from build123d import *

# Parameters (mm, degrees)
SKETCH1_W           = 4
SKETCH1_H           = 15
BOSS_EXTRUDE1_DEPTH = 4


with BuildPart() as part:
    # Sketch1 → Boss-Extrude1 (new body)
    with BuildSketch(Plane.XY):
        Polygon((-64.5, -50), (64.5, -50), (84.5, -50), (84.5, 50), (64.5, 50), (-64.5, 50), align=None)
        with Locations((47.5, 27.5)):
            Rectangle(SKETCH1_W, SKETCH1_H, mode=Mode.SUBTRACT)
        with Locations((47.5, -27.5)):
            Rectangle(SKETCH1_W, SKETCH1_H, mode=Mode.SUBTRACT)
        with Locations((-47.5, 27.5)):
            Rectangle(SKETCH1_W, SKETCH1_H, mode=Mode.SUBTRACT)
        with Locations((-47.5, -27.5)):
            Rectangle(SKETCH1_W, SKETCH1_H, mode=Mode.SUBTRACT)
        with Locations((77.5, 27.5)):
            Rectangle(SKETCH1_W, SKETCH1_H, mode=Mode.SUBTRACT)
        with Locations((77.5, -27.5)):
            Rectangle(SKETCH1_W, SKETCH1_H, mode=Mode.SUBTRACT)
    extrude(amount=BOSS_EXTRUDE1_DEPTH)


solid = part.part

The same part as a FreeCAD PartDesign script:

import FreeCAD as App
import Part
import Sketcher
from FreeCAD import Vector
Q = App.Units.Quantity

doc = App.newDocument("Part")
body = doc.addObject("PartDesign::Body", "Body")

sketch1 = body.newObject("Sketcher::SketchObject", "Sketch")
sketch1.AttachmentSupport = (doc.getObject("XY_Plane"), [""])
sketch1.MapMode = "FlatFace"
sketch1.addGeometry([
    Part.LineSegment(Vector(-64.5, -50, 0), Vector(84.5, -50, 0)),
    Part.LineSegment(Vector(84.5, -50, 0), Vector(84.5, 50, 0)),
    Part.LineSegment(Vector(84.5, 50, 0), Vector(-64.5, 50, 0)),
    Part.LineSegment(Vector(-64.5, 50, 0), Vector(-64.5, -50, 0)),
    Part.LineSegment(Vector(-45.5, -35, 0), Vector(-49.5, -35, 0)),
    Part.LineSegment(Vector(-49.5, -35, 0), Vector(-49.5, -20, 0)),
    Part.LineSegment(Vector(-49.5, -20, 0), Vector(-45.5, -20, 0)),
    Part.LineSegment(Vector(-45.5, -20, 0), Vector(-45.5, -35, 0)),
    Part.LineSegment(Vector(49.5, -35, 0), Vector(45.5, -35, 0)),
    Part.LineSegment(Vector(45.5, -35, 0), Vector(45.5, -20, 0)),
    Part.LineSegment(Vector(45.5, -20, 0), Vector(49.5, -20, 0)),
    Part.LineSegment(Vector(49.5, -20, 0), Vector(49.5, -35, 0)),
    Part.LineSegment(Vector(79.5, -35, 0), Vector(75.5, -35, 0)),
    Part.LineSegment(Vector(75.5, -35, 0), Vector(75.5, -20, 0)),
    Part.LineSegment(Vector(75.5, -20, 0), Vector(79.5, -20, 0)),
    Part.LineSegment(Vector(79.5, -20, 0), Vector(79.5, -35, 0)),
    Part.LineSegment(Vector(-45.5, 20, 0), Vector(-49.5, 20, 0)),
    Part.LineSegment(Vector(-49.5, 20, 0), Vector(-49.5, 35, 0)),
    Part.LineSegment(Vector(-49.5, 35, 0), Vector(-45.5, 35, 0)),
    Part.LineSegment(Vector(-45.5, 35, 0), Vector(-45.5, 20, 0)),
    Part.LineSegment(Vector(49.5, 20, 0), Vector(45.5, 20, 0)),
    Part.LineSegment(Vector(45.5, 20, 0), Vector(45.5, 35, 0)),
    Part.LineSegment(Vector(45.5, 35, 0), Vector(49.5, 35, 0)),
    Part.LineSegment(Vector(49.5, 35, 0), Vector(49.5, 20, 0)),
    Part.LineSegment(Vector(79.5, 20, 0), Vector(75.5, 20, 0)),
    Part.LineSegment(Vector(75.5, 20, 0), Vector(75.5, 35, 0)),
    Part.LineSegment(Vector(75.5, 35, 0), Vector(79.5, 35, 0)),
    Part.LineSegment(Vector(79.5, 35, 0), Vector(79.5, 20, 0)),
], False)
sketch1.addConstraint([
    Sketcher.Constraint("Coincident", 0, 2, 1, 1),
    Sketcher.Constraint("Coincident", 1, 2, 2, 1),
    Sketcher.Constraint("Coincident", 2, 2, 3, 1),
    Sketcher.Constraint("Coincident", 3, 2, 0, 1),
    Sketcher.Constraint("Coincident", 4, 2, 5, 1),
    Sketcher.Constraint("Coincident", 5, 2, 6, 1),
    Sketcher.Constraint("Coincident", 6, 2, 7, 1),
    Sketcher.Constraint("Coincident", 7, 2, 4, 1),
    Sketcher.Constraint("Coincident", 8, 2, 9, 1),
    Sketcher.Constraint("Coincident", 9, 2, 10, 1),
    Sketcher.Constraint("Coincident", 10, 2, 11, 1),
    Sketcher.Constraint("Coincident", 11, 2, 8, 1),
    Sketcher.Constraint("Coincident", 12, 2, 13, 1),
    Sketcher.Constraint("Coincident", 13, 2, 14, 1),
    Sketcher.Constraint("Coincident", 14, 2, 15, 1),
    Sketcher.Constraint("Coincident", 15, 2, 12, 1),
    Sketcher.Constraint("Coincident", 16, 2, 17, 1),
    Sketcher.Constraint("Coincident", 17, 2, 18, 1),
    Sketcher.Constraint("Coincident", 18, 2, 19, 1),
    Sketcher.Constraint("Coincident", 19, 2, 16, 1),
    Sketcher.Constraint("Coincident", 20, 2, 21, 1),
    Sketcher.Constraint("Coincident", 21, 2, 22, 1),
    Sketcher.Constraint("Coincident", 22, 2, 23, 1),
    Sketcher.Constraint("Coincident", 23, 2, 20, 1),
    Sketcher.Constraint("Coincident", 24, 2, 25, 1),
    Sketcher.Constraint("Coincident", 25, 2, 26, 1),
    Sketcher.Constraint("Coincident", 26, 2, 27, 1),
    Sketcher.Constraint("Coincident", 27, 2, 24, 1),
    Sketcher.Constraint("Horizontal", 0),
    Sketcher.Constraint("Vertical", 1),
    Sketcher.Constraint("Horizontal", 2),
    Sketcher.Constraint("Vertical", 3),
    Sketcher.Constraint("Horizontal", 4),
    Sketcher.Constraint("Vertical", 5),
    Sketcher.Constraint("Horizontal", 6),
    Sketcher.Constraint("Vertical", 7),
    Sketcher.Constraint("Horizontal", 8),
    Sketcher.Constraint("Vertical", 9),
    Sketcher.Constraint("Horizontal", 10),
    Sketcher.Constraint("Vertical", 11),
    Sketcher.Constraint("Horizontal", 12),
    Sketcher.Constraint("Vertical", 13),
    Sketcher.Constraint("Horizontal", 14),
    Sketcher.Constraint("Vertical", 15),
    Sketcher.Constraint("Horizontal", 16),
    Sketcher.Constraint("Vertical", 17),
    Sketcher.Constraint("Horizontal", 18),
    Sketcher.Constraint("Vertical", 19),
    Sketcher.Constraint("Horizontal", 20),
    Sketcher.Constraint("Vertical", 21),
    Sketcher.Constraint("Horizontal", 22),
    Sketcher.Constraint("Vertical", 23),
    Sketcher.Constraint("Horizontal", 24),
    Sketcher.Constraint("Vertical", 25),
    Sketcher.Constraint("Horizontal", 26),
    Sketcher.Constraint("Vertical", 27),
    Sketcher.Constraint("Symmetric", 10, 2, 16, 2, -1, 1),
    Sketcher.Constraint("Symmetric", 8, 2, 18, 2, -1, 1),
    Sketcher.Constraint("Symmetric", 6, 2, 20, 2, -1, 1),
    Sketcher.Constraint("Symmetric", 4, 2, 22, 2, -1, 1),
    Sketcher.Constraint("Symmetric", 7, 2, 8, 2, -2),
    Sketcher.Constraint("Symmetric", 5, 2, 10, 2, -2),
    Sketcher.Constraint("Symmetric", 13, 2, 24, 2, -1),
    Sketcher.Constraint("Symmetric", 15, 2, 26, 2, -1),
    Sketcher.Constraint("Horizontal", 11, 2, 12, 2),
    Sketcher.Constraint("Horizontal", 10, 2, 13, 2),
    Sketcher.Constraint("Equal", 10, 12),
    Sketcher.Constraint("DistanceX", 0, 1, 0, 2, Q("149 mm")),
    Sketcher.Constraint("DistanceX", 4, 2, 4, 1, Q("4 mm")),
    Sketcher.Constraint("DistanceY", 1, 1, 1, 2, Q("100 mm")),
    Sketcher.Constraint("DistanceY", 5, 1, 5, 2, Q("15 mm")),
    Sketcher.Constraint("DistanceY", 0, 2, -1, 1, Q("50 mm")),
    Sketcher.Constraint("DistanceY", 4, 2, -1, 1, Q("35 mm")),
    Sketcher.Constraint("DistanceX", 3, 2, 4, 2, Q("15 mm")),
    Sketcher.Constraint("DistanceX", 8, 2, 0, 2, Q("39 mm")),
    Sketcher.Constraint("DistanceX", 12, 2, 0, 2, Q("9 mm")),
])
pad1 = body.newObject("PartDesign::Pad", "Pad")
pad1.Profile = sketch1
pad1.Length = 4

doc.recompute()
